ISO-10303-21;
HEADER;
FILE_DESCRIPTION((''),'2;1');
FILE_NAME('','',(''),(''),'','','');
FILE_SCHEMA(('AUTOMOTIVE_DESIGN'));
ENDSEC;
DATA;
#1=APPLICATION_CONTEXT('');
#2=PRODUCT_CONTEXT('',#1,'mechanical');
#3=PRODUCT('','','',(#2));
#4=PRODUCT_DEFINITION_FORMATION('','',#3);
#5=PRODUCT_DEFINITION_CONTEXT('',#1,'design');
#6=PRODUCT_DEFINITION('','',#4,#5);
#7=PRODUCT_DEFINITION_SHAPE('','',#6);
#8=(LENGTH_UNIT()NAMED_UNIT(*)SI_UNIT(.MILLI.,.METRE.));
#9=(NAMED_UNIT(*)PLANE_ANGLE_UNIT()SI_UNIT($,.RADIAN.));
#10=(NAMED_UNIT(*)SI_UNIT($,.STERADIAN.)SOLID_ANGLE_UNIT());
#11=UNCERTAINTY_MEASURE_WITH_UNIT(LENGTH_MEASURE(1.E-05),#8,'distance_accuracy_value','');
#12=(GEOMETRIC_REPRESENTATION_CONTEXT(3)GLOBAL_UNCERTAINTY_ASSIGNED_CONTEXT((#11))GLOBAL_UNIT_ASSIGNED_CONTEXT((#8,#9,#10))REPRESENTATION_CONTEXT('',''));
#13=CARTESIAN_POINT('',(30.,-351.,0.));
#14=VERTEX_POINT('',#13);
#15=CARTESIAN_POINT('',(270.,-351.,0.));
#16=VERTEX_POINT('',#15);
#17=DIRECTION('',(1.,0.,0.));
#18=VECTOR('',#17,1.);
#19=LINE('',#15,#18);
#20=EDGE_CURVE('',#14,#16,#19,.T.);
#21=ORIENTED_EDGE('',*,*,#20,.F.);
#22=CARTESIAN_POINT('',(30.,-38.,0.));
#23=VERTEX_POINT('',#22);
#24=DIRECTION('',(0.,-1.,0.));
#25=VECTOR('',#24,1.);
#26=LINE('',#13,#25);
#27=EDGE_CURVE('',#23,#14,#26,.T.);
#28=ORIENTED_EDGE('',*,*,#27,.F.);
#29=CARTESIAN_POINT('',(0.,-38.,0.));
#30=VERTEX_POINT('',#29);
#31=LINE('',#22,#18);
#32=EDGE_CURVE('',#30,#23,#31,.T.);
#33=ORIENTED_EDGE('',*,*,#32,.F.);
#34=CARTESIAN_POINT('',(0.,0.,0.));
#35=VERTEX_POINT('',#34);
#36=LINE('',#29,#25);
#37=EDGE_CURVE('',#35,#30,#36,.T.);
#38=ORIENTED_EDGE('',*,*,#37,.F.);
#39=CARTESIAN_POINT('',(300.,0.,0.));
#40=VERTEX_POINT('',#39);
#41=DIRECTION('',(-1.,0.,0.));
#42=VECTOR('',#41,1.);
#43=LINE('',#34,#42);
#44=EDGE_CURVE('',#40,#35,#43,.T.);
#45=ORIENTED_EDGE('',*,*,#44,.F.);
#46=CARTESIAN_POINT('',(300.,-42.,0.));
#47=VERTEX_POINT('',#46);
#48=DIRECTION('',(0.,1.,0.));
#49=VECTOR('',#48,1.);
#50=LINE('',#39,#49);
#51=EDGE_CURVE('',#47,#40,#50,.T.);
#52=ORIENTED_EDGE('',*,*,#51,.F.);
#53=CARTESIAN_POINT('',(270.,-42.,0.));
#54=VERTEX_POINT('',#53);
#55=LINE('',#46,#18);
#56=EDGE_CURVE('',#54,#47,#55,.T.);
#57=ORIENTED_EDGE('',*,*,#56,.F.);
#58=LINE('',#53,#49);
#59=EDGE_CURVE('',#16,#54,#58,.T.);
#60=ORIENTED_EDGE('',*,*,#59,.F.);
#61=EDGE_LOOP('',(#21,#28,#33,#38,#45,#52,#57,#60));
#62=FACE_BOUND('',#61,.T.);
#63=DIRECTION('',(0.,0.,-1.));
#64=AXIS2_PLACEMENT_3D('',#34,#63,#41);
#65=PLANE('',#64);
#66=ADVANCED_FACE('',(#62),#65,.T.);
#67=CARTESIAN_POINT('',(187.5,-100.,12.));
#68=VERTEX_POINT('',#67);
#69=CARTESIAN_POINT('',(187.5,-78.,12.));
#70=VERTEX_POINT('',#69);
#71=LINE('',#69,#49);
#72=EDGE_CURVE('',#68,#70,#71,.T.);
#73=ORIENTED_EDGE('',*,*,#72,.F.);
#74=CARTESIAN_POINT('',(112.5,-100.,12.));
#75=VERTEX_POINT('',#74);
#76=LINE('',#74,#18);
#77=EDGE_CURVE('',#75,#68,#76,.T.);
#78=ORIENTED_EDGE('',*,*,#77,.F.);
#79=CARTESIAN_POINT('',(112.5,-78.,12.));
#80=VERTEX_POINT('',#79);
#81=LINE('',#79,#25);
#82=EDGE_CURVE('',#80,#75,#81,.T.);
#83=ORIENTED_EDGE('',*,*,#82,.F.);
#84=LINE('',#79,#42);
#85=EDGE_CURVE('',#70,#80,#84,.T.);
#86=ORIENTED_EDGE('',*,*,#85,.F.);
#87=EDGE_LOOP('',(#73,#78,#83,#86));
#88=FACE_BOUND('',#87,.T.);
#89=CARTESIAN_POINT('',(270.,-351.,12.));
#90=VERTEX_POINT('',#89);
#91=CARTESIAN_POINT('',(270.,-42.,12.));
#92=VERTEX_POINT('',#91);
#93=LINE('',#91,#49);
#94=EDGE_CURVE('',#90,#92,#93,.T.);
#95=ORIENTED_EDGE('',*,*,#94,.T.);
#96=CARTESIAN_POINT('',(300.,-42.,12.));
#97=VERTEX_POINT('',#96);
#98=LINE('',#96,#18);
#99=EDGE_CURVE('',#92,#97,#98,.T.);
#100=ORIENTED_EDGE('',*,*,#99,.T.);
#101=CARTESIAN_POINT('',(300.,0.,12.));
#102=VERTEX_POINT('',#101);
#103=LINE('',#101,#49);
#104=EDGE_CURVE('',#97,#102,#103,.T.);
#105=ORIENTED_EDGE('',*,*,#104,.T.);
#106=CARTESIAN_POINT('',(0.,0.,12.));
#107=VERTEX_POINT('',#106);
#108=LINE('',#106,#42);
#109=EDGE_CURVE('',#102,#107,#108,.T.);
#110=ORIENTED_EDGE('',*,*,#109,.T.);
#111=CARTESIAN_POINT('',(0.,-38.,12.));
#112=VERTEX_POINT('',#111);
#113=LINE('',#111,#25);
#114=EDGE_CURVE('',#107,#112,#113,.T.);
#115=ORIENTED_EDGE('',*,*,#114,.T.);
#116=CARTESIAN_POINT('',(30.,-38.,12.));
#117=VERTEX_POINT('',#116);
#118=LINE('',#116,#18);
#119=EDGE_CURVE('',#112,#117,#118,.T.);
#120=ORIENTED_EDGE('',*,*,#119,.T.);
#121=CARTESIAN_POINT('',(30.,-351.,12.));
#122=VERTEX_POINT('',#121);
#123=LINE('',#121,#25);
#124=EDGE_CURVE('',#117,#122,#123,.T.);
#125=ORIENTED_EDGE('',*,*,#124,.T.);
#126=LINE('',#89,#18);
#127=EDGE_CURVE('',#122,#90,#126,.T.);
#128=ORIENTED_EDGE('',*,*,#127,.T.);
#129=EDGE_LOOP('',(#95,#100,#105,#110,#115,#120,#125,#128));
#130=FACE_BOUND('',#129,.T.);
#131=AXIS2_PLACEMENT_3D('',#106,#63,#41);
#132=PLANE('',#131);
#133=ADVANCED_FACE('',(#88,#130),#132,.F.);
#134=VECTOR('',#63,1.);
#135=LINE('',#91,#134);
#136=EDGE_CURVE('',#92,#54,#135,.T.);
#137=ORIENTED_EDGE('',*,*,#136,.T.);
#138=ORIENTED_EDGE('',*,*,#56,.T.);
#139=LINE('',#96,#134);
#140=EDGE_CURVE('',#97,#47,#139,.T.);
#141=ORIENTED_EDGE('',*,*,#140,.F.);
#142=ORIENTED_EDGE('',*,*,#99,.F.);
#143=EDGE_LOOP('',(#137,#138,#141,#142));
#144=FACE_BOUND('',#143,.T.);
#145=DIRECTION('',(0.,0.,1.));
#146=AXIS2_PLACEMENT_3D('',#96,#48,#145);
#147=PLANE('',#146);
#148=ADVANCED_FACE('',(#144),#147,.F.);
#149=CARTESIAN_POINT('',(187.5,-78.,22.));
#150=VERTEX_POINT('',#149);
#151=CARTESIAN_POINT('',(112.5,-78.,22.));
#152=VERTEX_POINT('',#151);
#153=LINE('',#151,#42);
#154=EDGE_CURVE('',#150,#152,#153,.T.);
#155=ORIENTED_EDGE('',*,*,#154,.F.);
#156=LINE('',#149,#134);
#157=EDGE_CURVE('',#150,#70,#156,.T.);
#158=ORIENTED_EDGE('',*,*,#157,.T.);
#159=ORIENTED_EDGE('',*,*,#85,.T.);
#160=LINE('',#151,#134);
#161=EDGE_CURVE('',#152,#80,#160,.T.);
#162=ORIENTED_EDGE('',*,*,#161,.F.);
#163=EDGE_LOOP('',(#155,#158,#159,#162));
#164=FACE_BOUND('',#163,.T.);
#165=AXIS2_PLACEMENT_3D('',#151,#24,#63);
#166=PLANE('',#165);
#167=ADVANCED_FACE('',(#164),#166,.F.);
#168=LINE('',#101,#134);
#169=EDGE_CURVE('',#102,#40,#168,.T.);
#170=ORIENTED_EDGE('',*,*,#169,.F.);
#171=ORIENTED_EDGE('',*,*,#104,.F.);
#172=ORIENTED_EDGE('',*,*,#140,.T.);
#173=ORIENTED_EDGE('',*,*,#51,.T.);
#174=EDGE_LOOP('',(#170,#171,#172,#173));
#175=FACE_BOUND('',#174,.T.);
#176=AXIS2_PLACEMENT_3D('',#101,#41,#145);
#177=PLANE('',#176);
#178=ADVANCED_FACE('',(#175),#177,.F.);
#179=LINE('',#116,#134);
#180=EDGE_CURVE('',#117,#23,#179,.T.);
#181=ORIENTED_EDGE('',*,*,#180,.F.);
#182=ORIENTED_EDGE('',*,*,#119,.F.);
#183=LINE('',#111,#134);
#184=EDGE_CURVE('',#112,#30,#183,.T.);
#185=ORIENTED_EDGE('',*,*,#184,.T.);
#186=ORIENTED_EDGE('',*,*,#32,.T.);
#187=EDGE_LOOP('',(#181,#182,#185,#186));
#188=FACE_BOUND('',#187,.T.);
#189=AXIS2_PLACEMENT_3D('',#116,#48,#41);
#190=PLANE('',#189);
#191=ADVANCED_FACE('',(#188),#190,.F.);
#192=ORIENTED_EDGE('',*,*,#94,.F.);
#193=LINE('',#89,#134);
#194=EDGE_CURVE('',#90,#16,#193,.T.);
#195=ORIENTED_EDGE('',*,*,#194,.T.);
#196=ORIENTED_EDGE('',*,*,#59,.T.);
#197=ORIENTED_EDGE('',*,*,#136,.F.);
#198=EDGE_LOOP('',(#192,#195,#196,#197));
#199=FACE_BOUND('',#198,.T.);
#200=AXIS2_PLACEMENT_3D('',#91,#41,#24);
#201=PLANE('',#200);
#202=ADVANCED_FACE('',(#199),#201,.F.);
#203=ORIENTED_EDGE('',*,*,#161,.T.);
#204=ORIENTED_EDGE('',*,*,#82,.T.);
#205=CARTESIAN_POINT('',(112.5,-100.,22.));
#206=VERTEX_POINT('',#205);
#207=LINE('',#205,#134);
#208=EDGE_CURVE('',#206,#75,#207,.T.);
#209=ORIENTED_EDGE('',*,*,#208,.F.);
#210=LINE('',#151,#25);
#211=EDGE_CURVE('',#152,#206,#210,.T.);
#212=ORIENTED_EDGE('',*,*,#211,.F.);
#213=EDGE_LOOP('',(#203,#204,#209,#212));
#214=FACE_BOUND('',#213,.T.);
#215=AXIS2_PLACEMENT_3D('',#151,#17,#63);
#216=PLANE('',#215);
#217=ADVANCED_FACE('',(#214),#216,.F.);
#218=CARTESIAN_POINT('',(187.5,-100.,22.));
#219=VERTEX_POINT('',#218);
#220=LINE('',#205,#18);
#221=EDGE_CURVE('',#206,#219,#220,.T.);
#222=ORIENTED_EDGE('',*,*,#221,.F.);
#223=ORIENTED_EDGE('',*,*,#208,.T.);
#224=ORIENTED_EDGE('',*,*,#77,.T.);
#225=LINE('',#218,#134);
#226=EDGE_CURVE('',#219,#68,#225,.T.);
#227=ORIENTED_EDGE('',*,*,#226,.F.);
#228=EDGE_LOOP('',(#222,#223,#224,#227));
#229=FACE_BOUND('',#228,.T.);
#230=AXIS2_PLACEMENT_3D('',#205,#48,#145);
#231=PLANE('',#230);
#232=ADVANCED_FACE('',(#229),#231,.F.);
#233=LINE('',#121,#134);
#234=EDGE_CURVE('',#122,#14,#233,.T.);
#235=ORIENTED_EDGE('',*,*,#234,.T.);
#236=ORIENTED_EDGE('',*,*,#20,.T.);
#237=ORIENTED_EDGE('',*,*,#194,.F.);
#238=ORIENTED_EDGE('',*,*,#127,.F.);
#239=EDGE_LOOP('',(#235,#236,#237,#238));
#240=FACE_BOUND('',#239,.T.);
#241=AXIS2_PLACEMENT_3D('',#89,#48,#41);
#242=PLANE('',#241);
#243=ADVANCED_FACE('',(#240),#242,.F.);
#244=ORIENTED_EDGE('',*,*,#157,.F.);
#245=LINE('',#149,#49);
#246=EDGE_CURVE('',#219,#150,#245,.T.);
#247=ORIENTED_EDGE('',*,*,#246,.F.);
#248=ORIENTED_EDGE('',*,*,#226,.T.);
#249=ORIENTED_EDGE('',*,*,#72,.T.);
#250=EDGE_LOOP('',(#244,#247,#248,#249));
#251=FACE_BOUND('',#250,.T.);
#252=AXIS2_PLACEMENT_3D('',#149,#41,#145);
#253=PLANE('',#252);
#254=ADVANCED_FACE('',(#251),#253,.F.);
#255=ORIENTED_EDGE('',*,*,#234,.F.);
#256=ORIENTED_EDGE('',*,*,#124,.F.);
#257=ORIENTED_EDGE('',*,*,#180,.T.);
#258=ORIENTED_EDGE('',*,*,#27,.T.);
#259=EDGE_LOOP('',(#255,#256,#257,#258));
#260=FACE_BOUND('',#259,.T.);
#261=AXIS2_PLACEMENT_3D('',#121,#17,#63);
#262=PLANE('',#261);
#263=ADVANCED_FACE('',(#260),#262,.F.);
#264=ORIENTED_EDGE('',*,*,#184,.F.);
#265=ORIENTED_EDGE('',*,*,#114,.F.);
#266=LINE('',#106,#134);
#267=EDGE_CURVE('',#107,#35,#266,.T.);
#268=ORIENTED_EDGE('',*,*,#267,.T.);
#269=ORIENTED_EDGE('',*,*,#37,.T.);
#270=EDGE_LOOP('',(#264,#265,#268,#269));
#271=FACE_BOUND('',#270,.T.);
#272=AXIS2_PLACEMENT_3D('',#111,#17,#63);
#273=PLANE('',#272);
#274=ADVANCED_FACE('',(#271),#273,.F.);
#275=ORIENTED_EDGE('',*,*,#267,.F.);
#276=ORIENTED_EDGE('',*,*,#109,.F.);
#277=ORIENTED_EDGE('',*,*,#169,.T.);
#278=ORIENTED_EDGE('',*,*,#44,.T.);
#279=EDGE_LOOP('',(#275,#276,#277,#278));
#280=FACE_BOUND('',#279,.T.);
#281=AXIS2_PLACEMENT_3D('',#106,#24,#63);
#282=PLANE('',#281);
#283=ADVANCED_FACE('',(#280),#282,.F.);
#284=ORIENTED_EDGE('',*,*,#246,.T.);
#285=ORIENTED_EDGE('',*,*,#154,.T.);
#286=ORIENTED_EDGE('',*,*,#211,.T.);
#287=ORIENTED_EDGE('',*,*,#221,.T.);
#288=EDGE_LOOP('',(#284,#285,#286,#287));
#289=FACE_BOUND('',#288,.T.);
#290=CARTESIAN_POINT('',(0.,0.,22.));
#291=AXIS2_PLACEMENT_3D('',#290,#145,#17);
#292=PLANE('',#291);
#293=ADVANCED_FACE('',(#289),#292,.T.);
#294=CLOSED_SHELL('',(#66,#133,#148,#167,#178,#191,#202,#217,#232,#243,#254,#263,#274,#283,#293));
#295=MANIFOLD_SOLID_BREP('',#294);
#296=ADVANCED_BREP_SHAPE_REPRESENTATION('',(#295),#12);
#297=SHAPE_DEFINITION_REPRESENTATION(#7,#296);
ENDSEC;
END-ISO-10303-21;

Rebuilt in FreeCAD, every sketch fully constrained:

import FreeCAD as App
import Part
import Sketcher
from FreeCAD import Vector
Q = App.Units.Quantity

doc = App.newDocument("Part")
params = doc.addObject("Spreadsheet::Sheet", "Params")
for row, (alias, value) in enumerate([
    ("sketch1_width", "300 mm"),
    ("sketch1_width2", "30 mm"),
    ("sketch1_height", "38 mm"),
    ("sketch1_height2", "313 mm"),
    ("sketch1_height3", "309 mm"),
    ("pad1_length", "12 mm"),
    ("sketch2_width", "75 mm"),
    ("sketch2_height", "22 mm"),
    ("pad2_length", "10 mm"),
], start=1):
    params.set(f"A{row}", alias)
    params.set(f"B{row}", "=" + value)
    params.setAlias(f"B{row}", alias)

body = doc.addObject("PartDesign::Body", "Body")

# Sketch on XY plane
sketch1 = doc.addObject("Sketcher::SketchObject", "Sketch")
body.addObject(sketch1)
sketch1.AttachmentSupport = (doc.XY_Plane, [""])
sketch1.MapMode = "FlatFace"
sketch1.addGeometry([
    Part.LineSegment(Vector(300, 0, 0), Vector(0, 0, 0)),  # 0
    Part.LineSegment(Vector(0, 0, 0), Vector(0, -38, 0)),  # 1
    Part.LineSegment(Vector(0, -38, 0), Vector(30, -38, 0)),  # 2
    Part.LineSegment(Vector(30, -38, 0), Vector(30, -351, 0)),  # 3
    Part.LineSegment(Vector(30, -351, 0), Vector(270, -351, 0)),  # 4
    Part.LineSegment(Vector(270, -351, 0), Vector(270, -42, 0)),  # 5
    Part.LineSegment(Vector(270, -42, 0), Vector(300, -42, 0)),  # 6
    Part.LineSegment(Vector(300, -42, 0), Vector(300, 0, 0)),  # 7
], False)
sketch1.addConstraint([
    Sketcher.Constraint("Coincident", 0, 2, 1, 1),
    Sketcher.Constraint("Coincident", 1, 2, 2, 1),
    Sketcher.Constraint("Coincident", 2, 2, 3, 1),
    Sketcher.Constraint("Coincident", 3, 2, 4, 1),
    Sketcher.Constraint("Coincident", 4, 2, 5, 1),
    Sketcher.Constraint("Coincident", 5, 2, 6, 1),
    Sketcher.Constraint("Coincident", 6, 2, 7, 1),
    Sketcher.Constraint("Coincident", 7, 2, 0, 1),
    Sketcher.Constraint("Horizontal", 0),
    Sketcher.Constraint("Vertical", 1),
    Sketcher.Constraint("Horizontal", 2),
    Sketcher.Constraint("Vertical", 3),
    Sketcher.Constraint("Horizontal", 4),
    Sketcher.Constraint("Vertical", 5),
    Sketcher.Constraint("Horizontal", 6),
    Sketcher.Constraint("Vertical", 7),
    Sketcher.Constraint("Coincident", 0, 2, -1, 1),
    Sketcher.Constraint("Equal", 2, 6),
    Sketcher.Constraint("DistanceX", 0, 2, 0, 1, Q("300 mm")),
    Sketcher.Constraint("DistanceX", 2, 1, 2, 2, Q("30 mm")),
    Sketcher.Constraint("DistanceY", 1, 2, 1, 1, Q("38 mm")),
    Sketcher.Constraint("DistanceY", 3, 2, 3, 1, Q("313 mm")),
    Sketcher.Constraint("DistanceY", 5, 1, 5, 2, Q("309 mm")),
])
sketch1.setExpression("Constraints[18]", "Params.sketch1_width")
sketch1.setExpression("Constraints[19]", "Params.sketch1_width2")
sketch1.setExpression("Constraints[20]", "Params.sketch1_height")
sketch1.setExpression("Constraints[21]", "Params.sketch1_height2")
sketch1.setExpression("Constraints[22]", "Params.sketch1_height3")
pad1 = doc.addObject("PartDesign::Pad", "Pad")
body.addObject(pad1)
pad1.Profile = sketch1
pad1.setExpression("Length", "Params.pad1_length")

# Sketch on XY plane
sketch2 = doc.addObject("Sketcher::SketchObject", "Sketch001")
body.addObject(sketch2)
sketch2.AttachmentSupport = (doc.XY_Plane, [""])
sketch2.MapMode = "FlatFace"
sketch2.AttachmentOffset = App.Placement(Vector(0, 0, 12), App.Rotation())
sketch2.addGeometry([
    Part.LineSegment(Vector(112, -78, 0), Vector(112, -100, 0)),
    Part.LineSegment(Vector(112, -100, 0), Vector(188, -100, 0)),
    Part.LineSegment(Vector(188, -100, 0), Vector(188, -78, 0)),
    Part.LineSegment(Vector(188, -78, 0), Vector(112, -78, 0)),
], False)
sketch2.addConstraint([
    Sketcher.Constraint("Coincident", 0, 2, 1, 1),
    Sketcher.Constraint("Coincident", 1, 2, 2, 1),
    Sketcher.Constraint("Coincident", 2, 2, 3, 1),
    Sketcher.Constraint("Coincident", 3, 2, 0, 1),
    Sketcher.Constraint("Vertical", 0),
    Sketcher.Constraint("Horizontal", 1),
    Sketcher.Constraint("Vertical", 2),
    Sketcher.Constraint("Horizontal", 3),
    Sketcher.Constraint("DistanceX", 1, 1, 1, 2, Q("75 mm")),
    Sketcher.Constraint("DistanceY", 0, 2, 0, 1, Q("22 mm")),
    Sketcher.Constraint("DistanceY", 0, 2, -1, 1, Q("100 mm")),
    Sketcher.Constraint("DistanceX", -1, 1, 0, 2, Q("112.5 mm")),
])
sketch2.setExpression("Constraints[8]", "Params.sketch2_width")
sketch2.setExpression("Constraints[9]", "Params.sketch2_height")
pad2 = doc.addObject("PartDesign::Pad", "Pad001")
body.addObject(pad2)
pad2.Profile = sketch2
pad2.setExpression("Length", "Params.pad2_length")

doc.recompute()
